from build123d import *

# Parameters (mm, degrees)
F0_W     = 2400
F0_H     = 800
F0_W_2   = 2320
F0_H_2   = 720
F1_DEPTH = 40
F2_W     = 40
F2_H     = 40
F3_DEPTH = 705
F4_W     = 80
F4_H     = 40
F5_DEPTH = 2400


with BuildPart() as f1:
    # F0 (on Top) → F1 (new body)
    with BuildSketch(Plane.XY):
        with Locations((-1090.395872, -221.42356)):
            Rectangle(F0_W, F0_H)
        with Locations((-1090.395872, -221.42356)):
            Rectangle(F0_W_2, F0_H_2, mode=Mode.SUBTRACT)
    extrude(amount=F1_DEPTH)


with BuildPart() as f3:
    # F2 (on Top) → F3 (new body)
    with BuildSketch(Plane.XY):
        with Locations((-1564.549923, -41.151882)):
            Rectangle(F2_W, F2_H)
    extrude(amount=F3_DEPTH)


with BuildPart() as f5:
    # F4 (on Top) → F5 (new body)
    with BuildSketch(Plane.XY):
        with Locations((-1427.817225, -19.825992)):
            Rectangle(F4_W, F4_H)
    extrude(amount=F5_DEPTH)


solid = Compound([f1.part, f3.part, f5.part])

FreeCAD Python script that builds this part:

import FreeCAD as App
import Part
import Sketcher

V = App.Vector


def add_polygon(sketch, points):
    """Adds a closed chain of lines whose ends are joined by coincident constraints."""
    first, n = sketch.GeometryCount, len(points)
    for a, b in zip(points, points[1:] + points[:1]):
        sketch.addGeometry(Part.LineSegment(App.Vector(*a, 0), App.Vector(*b, 0)), False)
    for i in range(n):
        sketch.addConstraint(Sketcher.Constraint("Coincident", first + i, 2, first + (i + 1) % n, 1))

doc = App.newDocument("Part")
body = doc.addObject("PartDesign::Body", "Body")

sketch1 = body.newObject("Sketcher::SketchObject", "Sketch")
sketch1.AttachmentSupport = (doc.getObject("XY_Plane"), [""])
sketch1.MapMode = "FlatFace"
add_polygon(sketch1, [(-2290.395872, 178.57644), (-2290.395872, -621.42356), (109.604128, -621.42356), (109.604128, 178.57644)])
add_polygon(sketch1, [(69.604128, -581.42356), (-2250.395872, -581.42356), (-2250.395872, 138.57644), (69.604128, 138.57644)])
sketch1.addConstraint(Sketcher.Constraint("Vertical", 0))
sketch1.addConstraint(Sketcher.Constraint("Horizontal", 1))
sketch1.addConstraint(Sketcher.Constraint("Vertical", 2))
sketch1.addConstraint(Sketcher.Constraint("Horizontal", 3))
sketch1.addConstraint(Sketcher.Constraint("Horizontal", 4))
sketch1.addConstraint(Sketcher.Constraint("Vertical", 5))
sketch1.addConstraint(Sketcher.Constraint("Horizontal", 6))
sketch1.addConstraint(Sketcher.Constraint("Vertical", 7))
sketch1.addConstraint(Sketcher.Constraint("DistanceX", 1, 1, 1, 2, 2400.0))
sketch1.addConstraint(Sketcher.Constraint("DistanceX", 4, 2, 4, 1, 2320.0))
sketch1.addConstraint(Sketcher.Constraint("DistanceY", 0, 2, 0, 1, 800.0))
sketch1.addConstraint(Sketcher.Constraint("DistanceY", 5, 1, 5, 2, 720.0))
sketch1.addConstraint(Sketcher.Constraint("DistanceX", 0, 2, 4, 2, 40.0))
sketch1.addConstraint(Sketcher.Constraint("DistanceY", 0, 2, 4, 2, 40.0))
sketch1.addConstraint(Sketcher.Constraint("DistanceY", 0, 2, -1, 1, 621.42356))
sketch1.addConstraint(Sketcher.Constraint("DistanceX", -1, 1, 1, 2, 109.604128))
pad1 = body.newObject("PartDesign::Pad", "Pad")
pad1.Profile = sketch1
pad1.Length = 40
body2 = doc.addObject("PartDesign::Body", "Body001")

sketch2 = body2.newObject("Sketcher::SketchObject", "Sketch001")
sketch2.AttachmentSupport = (doc.getObject("XY_Plane001"), [""])
sketch2.MapMode = "FlatFace"
add_polygon(sketch2, [(-1584.549923, -21.151882), (-1584.549923, -61.151882), (-1544.549923, -61.151882), (-1544.549923, -21.151882)])
sketch2.addConstraint(Sketcher.Constraint("Vertical", 0))
sketch2.addConstraint(Sketcher.Constraint("Horizontal", 1))
sketch2.addConstraint(Sketcher.Constraint("Vertical", 2))
sketch2.addConstraint(Sketcher.Constraint("Horizontal", 3))
sketch2.addConstraint(Sketcher.Constraint("Equal", 3, 0))
sketch2.addConstraint(Sketcher.Constraint("DistanceX", 1, 1, 1, 2, 40.0))
sketch2.addConstraint(Sketcher.Constraint("DistanceX", 0, 2, -1, 1, 1584.549923))
sketch2.addConstraint(Sketcher.Constraint("DistanceY", 0, 2, -1, 1, 61.151882))
pad2 = body2.newObject("PartDesign::Pad", "Pad001")
pad2.Profile = sketch2
pad2.Length = 705
body3 = doc.addObject("PartDesign::Body", "Body002")

sketch3 = body3.newObject("Sketcher::SketchObject", "Sketch002")
sketch3.AttachmentSupport = (doc.getObject("XY_Plane002"), [""])
sketch3.MapMode = "FlatFace"
add_polygon(sketch3, [(-1467.817225, 0.174008), (-1467.817225, -39.825992), (-1387.817225, -39.825992), (-1387.817225, 0.174008)])
sketch3.addConstraint(Sketcher.Constraint("Vertical", 0))
sketch3.addConstraint(Sketcher.Constraint("Horizontal", 1))
sketch3.addConstraint(Sketcher.Constraint("Vertical", 2))
sketch3.addConstraint(Sketcher.Constraint("Horizontal", 3))
sketch3.addConstraint(Sketcher.Constraint("DistanceX", 1, 1, 1, 2, 80.0))
sketch3.addConstraint(Sketcher.Constraint("DistanceY", 0, 2, 0, 1, 40.0))
sketch3.addConstraint(Sketcher.Constraint("DistanceX", 0, 2, -1, 1, 1467.817225))
sketch3.addConstraint(Sketcher.Constraint("DistanceY", 0, 2, -1, 1, 39.825992))
pad3 = body3.newObject("PartDesign::Pad", "Pad002")
pad3.Profile = sketch3
pad3.Length = 2400

doc.recompute()
